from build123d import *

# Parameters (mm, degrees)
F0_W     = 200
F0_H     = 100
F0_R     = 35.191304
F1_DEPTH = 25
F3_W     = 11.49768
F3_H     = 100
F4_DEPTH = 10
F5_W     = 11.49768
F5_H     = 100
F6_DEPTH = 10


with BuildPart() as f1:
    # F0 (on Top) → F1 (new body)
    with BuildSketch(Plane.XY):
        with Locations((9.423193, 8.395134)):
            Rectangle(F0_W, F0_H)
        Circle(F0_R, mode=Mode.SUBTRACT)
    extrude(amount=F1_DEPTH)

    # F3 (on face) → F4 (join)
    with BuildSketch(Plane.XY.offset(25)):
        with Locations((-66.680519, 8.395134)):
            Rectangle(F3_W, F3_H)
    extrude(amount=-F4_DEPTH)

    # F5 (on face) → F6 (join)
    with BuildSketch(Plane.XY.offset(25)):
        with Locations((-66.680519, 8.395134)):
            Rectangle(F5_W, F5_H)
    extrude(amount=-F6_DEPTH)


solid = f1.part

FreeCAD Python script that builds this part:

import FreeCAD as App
import Part
import Sketcher
from FreeCAD import Vector
Q = App.Units.Quantity


def add_polygon(sketch, points):
    """Adds a closed chain of lines whose ends are joined by coincident constraints."""
    first, n = sketch.GeometryCount, len(points)
    for a, b in zip(points, points[1:] + points[:1]):
        sketch.addGeometry(Part.LineSegment(App.Vector(*a, 0), App.Vector(*b, 0)), False)
    for i in range(n):
        sketch.addConstraint(Sketcher.Constraint("Coincident", first + i, 2, first + (i + 1) % n, 1))

doc = App.newDocument("Part")
body = doc.addObject("PartDesign::Body", "Body")

# Sketch on XY plane
sketch1 = doc.addObject("Sketcher::SketchObject", "Sketch")
body.addObject(sketch1)
sketch1.AttachmentSupport = (doc.XY_Plane, [""])
sketch1.MapMode = "FlatFace"
add_polygon(sketch1, [(-91, 58), (-91, -42), (109, -42), (109, 58)])  # lines 0-3
sketch1.addGeometry(Part.Circle(Vector(0, 0, 0), Vector(0, 0, 1), 35), False)  # 4
sketch1.addConstraint([
    Sketcher.Constraint("Vertical", 0),
    Sketcher.Constraint("Horizontal", 1),
    Sketcher.Constraint("Vertical", 2),
    Sketcher.Constraint("Horizontal", 3),
    Sketcher.Constraint("Coincident", 4, 3, -1, 1),
    Sketcher.Constraint("DistanceX", 1, 1, 1, 2, Q("200 mm")),
    Sketcher.Constraint("DistanceY", 0, 2, 0, 1, Q("100 mm")),
    Sketcher.Constraint("Diameter", 4, Q("70.382608 mm")),
    Sketcher.Constraint("DistanceX", 0, 2, -1, 1, Q("90.576807 mm")),
    Sketcher.Constraint("DistanceY", 0, 2, -1, 1, Q("41.604866 mm")),
])
pad1 = doc.addObject("PartDesign::Pad", "Pad")
body.addObject(pad1)
pad1.Profile = sketch1
pad1.Length = 25

# Sketch on XY plane
sketch2 = doc.addObject("Sketcher::SketchObject", "Sketch001")
body.addObject(sketch2)
sketch2.AttachmentSupport = (doc.XY_Plane, [""])
sketch2.MapMode = "FlatFace"
sketch2.AttachmentOffset = App.Placement(Vector(0, 0, 25), App.Rotation())
add_polygon(sketch2, [(-72, 58), (-72, -42), (-61, -42), (-61, 58)])  # lines 0-3
sketch2.addConstraint([
    Sketcher.Constraint("Vertical", 0),
    Sketcher.Constraint("Horizontal", 1),
    Sketcher.Constraint("Vertical", 2),
    Sketcher.Constraint("Horizontal", 3),
    Sketcher.Constraint("DistanceY", 0, 2, 0, 1, Q("100 mm")),
    Sketcher.Constraint("DistanceX", 1, 1, 1, 2, Q("11.49768 mm")),
    Sketcher.Constraint("DistanceX", 0, 2, -1, 1, Q("72.429359 mm")),
    Sketcher.Constraint("DistanceY", 0, 2, -1, 1, Q("41.604866 mm")),
])
pad2 = doc.addObject("PartDesign::Pad", "Pad001")
body.addObject(pad2)
pad2.Profile = sketch2
pad2.Length = 10
pad2.Reversed = True

# Sketch on XY plane
sketch3 = doc.addObject("Sketcher::SketchObject", "Sketch002")
body.addObject(sketch3)
sketch3.AttachmentSupport = (doc.XY_Plane, [""])
sketch3.MapMode = "FlatFace"
sketch3.AttachmentOffset = App.Placement(Vector(0, 0, 25), App.Rotation())
add_polygon(sketch3, [(-72, 58), (-72, -42), (-61, -42), (-61, 58)])  # lines 0-3
sketch3.addConstraint([
    Sketcher.Constraint("Vertical", 0),
    Sketcher.Constraint("Horizontal", 1),
    Sketcher.Constraint("Vertical", 2),
    Sketcher.Constraint("Horizontal", 3),
    Sketcher.Constraint("DistanceY", 0, 2, 0, 1, Q("100 mm")),
    Sketcher.Constraint("DistanceX", 1, 1, 1, 2, Q("11.49768 mm")),
    Sketcher.Constraint("DistanceX", 0, 2, -1, 1, Q("72.429359 mm")),
    Sketcher.Constraint("DistanceY", 0, 2, -1, 1, Q("41.604866 mm")),
])
pad3 = doc.addObject("PartDesign::Pad", "Pad002")
body.addObject(pad3)
pad3.Profile = sketch3
pad3.Length = 10
pad3.Reversed = True

doc.recompute()
